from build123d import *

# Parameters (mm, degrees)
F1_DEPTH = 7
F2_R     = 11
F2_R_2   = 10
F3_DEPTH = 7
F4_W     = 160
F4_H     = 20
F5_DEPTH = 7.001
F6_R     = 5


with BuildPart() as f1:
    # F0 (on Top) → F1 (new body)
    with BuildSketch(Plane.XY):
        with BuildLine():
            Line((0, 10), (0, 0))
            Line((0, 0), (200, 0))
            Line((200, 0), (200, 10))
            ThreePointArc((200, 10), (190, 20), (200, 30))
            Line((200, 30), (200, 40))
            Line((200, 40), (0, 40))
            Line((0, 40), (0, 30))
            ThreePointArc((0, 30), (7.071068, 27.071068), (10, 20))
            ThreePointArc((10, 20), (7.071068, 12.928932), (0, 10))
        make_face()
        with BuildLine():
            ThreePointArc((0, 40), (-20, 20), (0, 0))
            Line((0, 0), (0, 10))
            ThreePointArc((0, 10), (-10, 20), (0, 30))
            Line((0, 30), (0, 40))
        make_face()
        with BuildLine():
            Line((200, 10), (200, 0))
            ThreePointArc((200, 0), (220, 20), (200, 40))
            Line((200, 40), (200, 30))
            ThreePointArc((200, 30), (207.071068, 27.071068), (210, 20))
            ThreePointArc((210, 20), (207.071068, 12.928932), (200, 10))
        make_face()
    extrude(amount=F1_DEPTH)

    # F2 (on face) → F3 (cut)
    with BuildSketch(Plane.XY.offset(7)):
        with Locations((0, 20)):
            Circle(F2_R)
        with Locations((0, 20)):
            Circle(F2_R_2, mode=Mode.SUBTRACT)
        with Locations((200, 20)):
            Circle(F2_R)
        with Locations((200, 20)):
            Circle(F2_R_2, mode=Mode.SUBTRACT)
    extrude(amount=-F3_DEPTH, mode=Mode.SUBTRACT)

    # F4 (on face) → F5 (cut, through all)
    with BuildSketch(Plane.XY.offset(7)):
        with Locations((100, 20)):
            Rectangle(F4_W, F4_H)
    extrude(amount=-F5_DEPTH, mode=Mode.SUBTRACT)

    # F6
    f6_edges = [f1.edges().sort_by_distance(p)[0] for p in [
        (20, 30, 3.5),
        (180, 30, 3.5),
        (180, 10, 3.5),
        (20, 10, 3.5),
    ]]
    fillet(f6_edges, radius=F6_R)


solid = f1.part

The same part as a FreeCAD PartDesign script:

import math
import FreeCAD as App
import Part
import Sketcher
Q = App.Units.Quantity


def edges_at(feature, points):
    """Names of the edges that pass closest to the given points."""
    edges = feature.Shape.Edges
    near = lambda p: min(range(len(edges)), key=lambda i: edges[i].distToShape(Part.Vertex(*p))[0])
    return sorted({f"Edge{near(p) + 1}" for p in points})

doc = App.newDocument("Part")
body = doc.addObject("PartDesign::Body", "Body")

# Sketch on XY plane
sketch1 = doc.addObject("Sketcher::SketchObject", "Sketch")
body.addObject(sketch1)
sketch1.AttachmentSupport = (doc.XY_Plane, [""])
sketch1.MapMode = "FlatFace"
sketch1.addGeometry([
    Part.LineSegment(App.Vector(0, 0, 0), App.Vector(200, 0, 0)),  # 0
    Part.ArcOfCircle(Part.Circle(App.Vector(200, 20, 0), App.Vector(0, 0, 1), 20), math.radians(-90), math.radians(90)),  # 1
    Part.LineSegment(App.Vector(200, 40, 0), App.Vector(0, 40, 0)),  # 2
    Part.ArcOfCircle(Part.Circle(App.Vector(0, 20, 0), App.Vector(0, 0, 1), 20), math.radians(90), math.radians(270)),  # 3
    Part.ArcOfCircle(Part.Circle(App.Vector(200, 20, 0), App.Vector(0, 0, 1), 10), math.radians(90), math.radians(270)),  # 4
    Part.ArcOfCircle(Part.Circle(App.Vector(200, 20, 0), App.Vector(0, 0, 1), 10), math.radians(0), math.radians(90)),  # 5
    Part.ArcOfCircle(Part.Circle(App.Vector(200, 20, 0), App.Vector(0, 0, 1), 10), math.radians(-90), math.radians(0)),  # 6
    Part.ArcOfCircle(Part.Circle(App.Vector(0, 20, 0), App.Vector(0, 0, 1), 10), math.radians(0), math.radians(90)),  # 7
    Part.ArcOfCircle(Part.Circle(App.Vector(0, 20, 0), App.Vector(0, 0, 1), 10), math.radians(-90), math.radians(0)),  # 8
    Part.ArcOfCircle(Part.Circle(App.Vector(0, 20, 0), App.Vector(0, 0, 1), 10), math.radians(90), math.radians(270)),  # 9
], False)
sketch1.addConstraint([
    Sketcher.Constraint("Tangent", 0, 2, 1, 1),
    Sketcher.Constraint("Tangent", 1, 2, 2, 1),
    Sketcher.Constraint("Tangent", 2, 2, 3, 1),
    Sketcher.Constraint("Tangent", 3, 2, 0, 1),
    Sketcher.Constraint("Tangent", 4, 1, 5, 2),
    Sketcher.Constraint("Tangent", 5, 1, 6, 2),
    Sketcher.Constraint("Tangent", 6, 1, 4, 2),
    Sketcher.Constraint("Tangent", 7, 1, 8, 2),
    Sketcher.Constraint("Tangent", 8, 1, 9, 2),
    Sketcher.Constraint("Tangent", 9, 1, 7, 2),
    Sketcher.Constraint("Horizontal", 0),
    Sketcher.Constraint("Horizontal", 2),
    Sketcher.Constraint("Coincident", 3, 2, -1, 1),
    Sketcher.Constraint("Coincident", 4, 3, 1, 3),
    Sketcher.Constraint("Coincident", 7, 3, 3, 3),
    Sketcher.Constraint("Equal", 6, 7),
    Sketcher.Constraint("PointOnObject", 8, 1, -2),
    Sketcher.Constraint("PointOnObject", 9, 1, -2),
    Sketcher.Constraint("Horizontal", 9, 3, 5, 1),
    Sketcher.Constraint("Horizontal", 5, 1, 7, 1),
    Sketcher.Constraint("Vertical", 1, 2, 4, 1),
    Sketcher.Constraint("Vertical", 4, 1, 6, 1),
    Sketcher.Constraint("Radius", 1, Q("20 mm")),
    Sketcher.Constraint("Radius", 4, Q("10 mm")),
    Sketcher.Constraint("DistanceX", 0, 1, 0, 2, Q("200 mm")),
])
pad1 = doc.addObject("PartDesign::Pad", "Pad")
body.addObject(pad1)
pad1.Profile = sketch1
pad1.Length = 7

# Sketch on XY plane
sketch2 = doc.addObject("Sketcher::SketchObject", "Sketch001")
body.addObject(sketch2)
sketch2.AttachmentSupport = (doc.XY_Plane, [""])
sketch2.MapMode = "FlatFace"
sketch2.AttachmentOffset = App.Placement(App.Vector(0, 0, 7), App.Rotation())
sketch2.addGeometry([
    Part.Circle(App.Vector(0, 20, 0), App.Vector(0, 0, 1), 11),
    Part.Circle(App.Vector(0, 20, 0), App.Vector(0, 0, 1), 10),
    Part.Circle(App.Vector(200, 20, 0), App.Vector(0, 0, 1), 11),
    Part.Circle(App.Vector(200, 20, 0), App.Vector(0, 0, 1), 10),
], False)
sketch2.addConstraint([
    Sketcher.Constraint("Coincident", 1, 3, 0, 3),
    Sketcher.Constraint("Coincident", 3, 3, 2, 3),
    Sketcher.Constraint("Equal", 0, 2),
    Sketcher.Constraint("Equal", 1, 3),
    Sketcher.Constraint("PointOnObject", 0, 3, -2),
    Sketcher.Constraint("Horizontal", 1, 3, 2, 3),
    Sketcher.Constraint("Diameter", 0, Q("22 mm")),
    Sketcher.Constraint("Diameter", 1, Q("20 mm")),
    Sketcher.Constraint("DistanceY", -1, 1, 0, 3, Q("20 mm")),
    Sketcher.Constraint("DistanceX", -1, 1, 2, 3, Q("200 mm")),
])
pocket1 = doc.addObject("PartDesign::Pocket", "Pocket")
body.addObject(pocket1)
pocket1.Profile = sketch2
pocket1.Length = 7

# Sketch on XY plane
sketch3 = doc.addObject("Sketcher::SketchObject", "Sketch002")
body.addObject(sketch3)
sketch3.AttachmentSupport = (doc.XY_Plane, [""])
sketch3.MapMode = "FlatFace"
sketch3.AttachmentOffset = App.Placement(App.Vector(0, 0, 7), App.Rotation())
sketch3.addGeometry([
    Part.LineSegment(App.Vector(20, 30, 0), App.Vector(20, 10, 0)),
    Part.LineSegment(App.Vector(20, 10, 0), App.Vector(180, 10, 0)),
    Part.LineSegment(App.Vector(180, 10, 0), App.Vector(180, 30, 0)),
    Part.LineSegment(App.Vector(180, 30, 0), App.Vector(20, 30, 0)),
], False)
sketch3.addConstraint([
    Sketcher.Constraint("Coincident", 0, 2, 1, 1),
    Sketcher.Constraint("Coincident", 1, 2, 2, 1),
    Sketcher.Constraint("Coincident", 2, 2, 3, 1),
    Sketcher.Constraint("Coincident", 3, 2, 0, 1),
    Sketcher.Constraint("Vertical", 0),
    Sketcher.Constraint("Horizontal", 1),
    Sketcher.Constraint("Vertical", 2),
    Sketcher.Constraint("Horizontal", 3),
    Sketcher.Constraint("DistanceX", 1, 1, 1, 2, Q("160 mm")),
    Sketcher.Constraint("DistanceY", 0, 2, 0, 1, Q("20 mm")),
    Sketcher.Constraint("DistanceX", -1, 1, 0, 2, Q("20 mm")),
    Sketcher.Constraint("DistanceY", -1, 1, 0, 2, Q("10 mm")),
])
pocket2 = doc.addObject("PartDesign::Pocket", "Pocket001")
body.addObject(pocket2)
pocket2.Profile = sketch3
pocket2.Type = "ThroughAll"
doc.recompute()

fillet = doc.addObject("PartDesign::Fillet", "Fillet")
body.addObject(fillet)
fillet.Base = (pocket2, edges_at(pocket2, [
    (20, 30, 3.5),
    (180, 30, 3.5),
    (180, 10, 3.5),
    (20, 10, 3.5),
]))
fillet.Radius = 5

doc.recompute()
